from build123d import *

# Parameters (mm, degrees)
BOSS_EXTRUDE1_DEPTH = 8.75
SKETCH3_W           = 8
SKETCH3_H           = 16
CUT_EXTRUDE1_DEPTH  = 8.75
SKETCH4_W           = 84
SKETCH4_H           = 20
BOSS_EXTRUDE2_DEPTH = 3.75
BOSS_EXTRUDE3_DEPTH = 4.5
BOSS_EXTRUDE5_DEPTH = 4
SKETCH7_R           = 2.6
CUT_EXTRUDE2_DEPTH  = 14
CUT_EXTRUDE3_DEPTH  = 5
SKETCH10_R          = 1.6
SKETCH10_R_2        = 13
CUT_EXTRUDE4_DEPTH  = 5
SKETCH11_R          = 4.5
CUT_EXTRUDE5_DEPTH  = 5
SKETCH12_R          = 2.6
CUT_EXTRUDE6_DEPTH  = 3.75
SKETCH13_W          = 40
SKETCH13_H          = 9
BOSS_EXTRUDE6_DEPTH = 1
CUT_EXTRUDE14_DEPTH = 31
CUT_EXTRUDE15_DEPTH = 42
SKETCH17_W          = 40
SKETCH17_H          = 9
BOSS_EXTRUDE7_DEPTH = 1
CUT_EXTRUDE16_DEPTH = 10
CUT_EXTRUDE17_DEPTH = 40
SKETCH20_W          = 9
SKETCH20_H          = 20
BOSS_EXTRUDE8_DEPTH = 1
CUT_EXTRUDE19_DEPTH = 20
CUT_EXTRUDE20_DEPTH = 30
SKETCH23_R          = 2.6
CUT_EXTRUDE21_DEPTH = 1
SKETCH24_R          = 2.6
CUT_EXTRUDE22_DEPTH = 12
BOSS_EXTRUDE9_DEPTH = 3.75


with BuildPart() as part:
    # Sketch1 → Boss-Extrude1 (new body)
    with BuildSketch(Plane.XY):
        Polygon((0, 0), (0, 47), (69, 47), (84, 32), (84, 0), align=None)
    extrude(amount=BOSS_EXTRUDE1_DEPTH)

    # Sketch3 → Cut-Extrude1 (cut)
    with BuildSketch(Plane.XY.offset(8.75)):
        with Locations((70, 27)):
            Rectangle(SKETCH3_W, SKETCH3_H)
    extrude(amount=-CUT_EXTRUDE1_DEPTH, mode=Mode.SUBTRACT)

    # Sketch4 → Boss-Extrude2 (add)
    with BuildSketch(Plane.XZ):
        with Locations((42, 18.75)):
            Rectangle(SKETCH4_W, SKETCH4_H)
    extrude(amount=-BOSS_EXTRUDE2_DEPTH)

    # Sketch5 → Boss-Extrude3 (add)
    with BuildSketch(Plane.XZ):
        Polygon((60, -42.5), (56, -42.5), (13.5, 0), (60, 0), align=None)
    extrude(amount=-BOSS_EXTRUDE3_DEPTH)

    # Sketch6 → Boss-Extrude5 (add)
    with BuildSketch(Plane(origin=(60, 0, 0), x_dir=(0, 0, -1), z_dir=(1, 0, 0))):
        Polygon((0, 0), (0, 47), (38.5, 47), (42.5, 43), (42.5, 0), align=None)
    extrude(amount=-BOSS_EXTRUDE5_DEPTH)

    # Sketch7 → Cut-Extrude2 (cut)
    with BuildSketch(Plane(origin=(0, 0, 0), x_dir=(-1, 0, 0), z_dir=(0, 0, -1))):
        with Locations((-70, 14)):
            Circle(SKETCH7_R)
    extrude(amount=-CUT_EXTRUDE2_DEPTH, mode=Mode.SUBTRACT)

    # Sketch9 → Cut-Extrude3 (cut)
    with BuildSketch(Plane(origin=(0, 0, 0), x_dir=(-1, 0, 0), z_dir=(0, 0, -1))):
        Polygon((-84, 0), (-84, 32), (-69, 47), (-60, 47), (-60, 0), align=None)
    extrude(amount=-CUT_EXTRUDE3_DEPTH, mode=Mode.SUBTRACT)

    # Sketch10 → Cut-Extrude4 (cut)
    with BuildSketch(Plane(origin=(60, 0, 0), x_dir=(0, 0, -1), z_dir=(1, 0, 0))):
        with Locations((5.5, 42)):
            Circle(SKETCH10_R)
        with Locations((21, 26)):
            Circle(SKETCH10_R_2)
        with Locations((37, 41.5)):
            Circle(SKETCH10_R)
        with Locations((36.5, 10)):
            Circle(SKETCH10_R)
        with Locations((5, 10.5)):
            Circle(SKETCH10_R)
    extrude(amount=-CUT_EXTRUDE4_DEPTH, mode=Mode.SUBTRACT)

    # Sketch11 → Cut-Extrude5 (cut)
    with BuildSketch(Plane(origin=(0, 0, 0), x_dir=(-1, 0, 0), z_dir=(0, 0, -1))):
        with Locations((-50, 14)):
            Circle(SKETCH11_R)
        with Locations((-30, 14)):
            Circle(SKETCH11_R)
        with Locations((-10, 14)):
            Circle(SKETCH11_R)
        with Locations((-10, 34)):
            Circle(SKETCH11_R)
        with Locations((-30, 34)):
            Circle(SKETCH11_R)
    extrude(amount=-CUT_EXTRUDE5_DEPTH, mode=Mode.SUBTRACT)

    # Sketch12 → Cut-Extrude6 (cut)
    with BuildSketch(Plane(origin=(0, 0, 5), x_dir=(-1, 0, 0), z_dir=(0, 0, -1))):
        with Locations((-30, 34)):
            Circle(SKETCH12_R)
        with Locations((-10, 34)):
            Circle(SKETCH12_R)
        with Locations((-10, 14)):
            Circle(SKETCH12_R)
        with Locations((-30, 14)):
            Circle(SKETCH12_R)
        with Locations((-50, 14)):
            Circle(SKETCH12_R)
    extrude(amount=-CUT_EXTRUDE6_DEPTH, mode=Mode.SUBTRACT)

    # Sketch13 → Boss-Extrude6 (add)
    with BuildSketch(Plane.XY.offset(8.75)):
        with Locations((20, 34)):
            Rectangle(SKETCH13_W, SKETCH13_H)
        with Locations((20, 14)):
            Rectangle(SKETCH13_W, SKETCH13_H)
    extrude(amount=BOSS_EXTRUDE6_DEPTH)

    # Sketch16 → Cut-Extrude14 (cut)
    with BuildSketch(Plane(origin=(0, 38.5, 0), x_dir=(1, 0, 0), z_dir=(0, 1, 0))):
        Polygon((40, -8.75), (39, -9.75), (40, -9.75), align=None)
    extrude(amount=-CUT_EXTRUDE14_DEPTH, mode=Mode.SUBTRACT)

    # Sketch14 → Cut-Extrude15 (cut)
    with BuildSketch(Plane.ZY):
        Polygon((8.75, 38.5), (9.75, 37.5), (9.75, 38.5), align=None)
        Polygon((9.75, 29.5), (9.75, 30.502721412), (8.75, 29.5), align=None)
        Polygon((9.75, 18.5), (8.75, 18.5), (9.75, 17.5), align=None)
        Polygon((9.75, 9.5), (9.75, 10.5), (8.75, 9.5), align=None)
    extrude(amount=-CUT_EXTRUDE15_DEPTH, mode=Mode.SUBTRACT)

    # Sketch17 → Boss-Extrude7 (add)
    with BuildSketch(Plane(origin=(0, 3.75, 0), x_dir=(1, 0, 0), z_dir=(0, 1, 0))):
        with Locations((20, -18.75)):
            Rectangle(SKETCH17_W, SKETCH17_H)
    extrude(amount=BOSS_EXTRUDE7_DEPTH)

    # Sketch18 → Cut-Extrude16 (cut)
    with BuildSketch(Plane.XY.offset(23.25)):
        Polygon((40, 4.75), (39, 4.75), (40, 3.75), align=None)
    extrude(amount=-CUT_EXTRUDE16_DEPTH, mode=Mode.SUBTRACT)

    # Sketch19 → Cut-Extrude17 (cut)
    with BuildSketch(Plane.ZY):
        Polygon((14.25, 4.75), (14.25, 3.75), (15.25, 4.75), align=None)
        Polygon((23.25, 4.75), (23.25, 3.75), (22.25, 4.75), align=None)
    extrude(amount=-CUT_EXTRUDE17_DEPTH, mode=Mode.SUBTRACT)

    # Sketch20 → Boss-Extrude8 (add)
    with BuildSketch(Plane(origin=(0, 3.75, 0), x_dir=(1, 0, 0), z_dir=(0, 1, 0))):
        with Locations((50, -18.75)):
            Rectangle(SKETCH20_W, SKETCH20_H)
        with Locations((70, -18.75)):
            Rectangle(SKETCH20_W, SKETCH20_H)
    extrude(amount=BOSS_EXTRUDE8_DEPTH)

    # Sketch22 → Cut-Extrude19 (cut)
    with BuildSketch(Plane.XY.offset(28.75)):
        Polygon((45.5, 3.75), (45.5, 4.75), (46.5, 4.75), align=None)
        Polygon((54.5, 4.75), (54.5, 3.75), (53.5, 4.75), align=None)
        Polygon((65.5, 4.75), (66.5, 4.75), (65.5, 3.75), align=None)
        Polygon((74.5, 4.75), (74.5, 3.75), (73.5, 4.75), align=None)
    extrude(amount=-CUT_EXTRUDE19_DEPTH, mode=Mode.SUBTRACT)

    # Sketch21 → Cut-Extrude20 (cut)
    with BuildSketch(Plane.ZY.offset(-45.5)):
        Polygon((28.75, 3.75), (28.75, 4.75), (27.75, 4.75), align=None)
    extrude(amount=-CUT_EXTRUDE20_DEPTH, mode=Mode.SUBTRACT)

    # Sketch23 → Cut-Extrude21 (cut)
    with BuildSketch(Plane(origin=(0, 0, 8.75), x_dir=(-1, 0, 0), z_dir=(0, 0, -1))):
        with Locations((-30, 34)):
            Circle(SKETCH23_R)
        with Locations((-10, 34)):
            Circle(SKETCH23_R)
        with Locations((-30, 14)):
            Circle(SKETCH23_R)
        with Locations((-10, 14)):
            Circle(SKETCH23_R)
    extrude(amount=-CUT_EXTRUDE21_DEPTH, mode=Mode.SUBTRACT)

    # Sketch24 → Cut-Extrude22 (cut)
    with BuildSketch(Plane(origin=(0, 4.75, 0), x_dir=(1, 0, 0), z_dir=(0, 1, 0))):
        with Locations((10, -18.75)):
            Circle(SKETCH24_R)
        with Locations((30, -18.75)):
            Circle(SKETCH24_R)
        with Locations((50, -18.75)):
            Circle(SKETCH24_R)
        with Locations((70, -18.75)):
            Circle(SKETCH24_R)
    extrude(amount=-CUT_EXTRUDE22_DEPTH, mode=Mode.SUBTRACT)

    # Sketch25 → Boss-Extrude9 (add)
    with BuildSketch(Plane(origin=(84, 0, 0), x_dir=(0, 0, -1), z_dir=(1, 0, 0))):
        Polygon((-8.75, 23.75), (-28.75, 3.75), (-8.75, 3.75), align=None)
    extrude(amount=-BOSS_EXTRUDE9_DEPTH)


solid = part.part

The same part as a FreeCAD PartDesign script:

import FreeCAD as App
import Part
import Sketcher
Q = App.Units.Quantity

doc = App.newDocument("Part")
params = doc.addObject("Spreadsheet::Sheet", "Params")
for row, (alias, value) in enumerate([
    ("sketch1_width", "84 mm"),
    ("sketch1_width2", "69 mm"),
    ("sketch1_height", "47 mm"),
    ("sketch1_height2", "32 mm"),
    ("pad1_length", "8.75 mm"),
    ("sketch2_width", "8 mm"),
    ("sketch2_height", "16 mm"),
    ("pocket1_length", "8.75 mm"),
    ("sketch3_width", "84 mm"),
    ("sketch3_height", "20 mm"),
    ("pad2_length", "3.75 mm"),
    ("sketch4_width", "4 mm"),
    ("sketch4_width2", "46.5 mm"),
    ("pad3_length", "4.5 mm"),
    ("sketch5_width", "47 mm"),
    ("sketch5_width2", "43 mm"),
    ("sketch5_height", "42.5 mm"),
    ("pad4_length", "4 mm"),
    ("sketch6_diameter", "5.2 mm"),
    ("pocket2_length", "14 mm"),
    ("sketch7_width", "24 mm"),
    ("sketch7_width2", "9 mm"),
    ("sketch7_height", "32 mm"),
    ("sketch7_height2", "47 mm"),
    ("pocket3_length", "5 mm"),
    ("sketch8_diameter", "26 mm"),
    ("sketch8_diameter2", "3.2 mm"),
    ("pocket4_length", "5 mm"),
    ("sketch9_diameter", "9 mm"),
    ("pocket5_length", "5 mm"),
    ("sketch10_diameter", "5.2 mm"),
    ("pocket6_length", "3.75 mm"),
    ("sketch11_width", "40 mm"),
    ("sketch11_height", "9 mm"),
    ("pad5_length", "1 mm"),
    ("sketch12_width", "1 mm"),
    ("pocket7_length", "31 mm"),
    ("sketch13_width", "1 mm"),
    ("pocket8_length", "42 mm"),
    ("sketch14_width", "40 mm"),
    ("sketch14_height", "9 mm"),
    ("pad6_length", "1 mm"),
    ("sketch15_width", "1 mm"),
    ("pocket9_length", "10 mm"),
    ("sketch16_width", "1 mm"),
    ("pocket10_length", "40 mm"),
    ("sketch17_width", "9 mm"),
    ("sketch17_height", "20 mm"),
    ("pad7_length", "1 mm"),
    ("sketch18_width", "1 mm"),
    ("pocket11_length", "20 mm"),
    ("sketch19_width", "1 mm"),
    ("pocket12_length", "30 mm"),
    ("sketch20_diameter", "5.2 mm"),
    ("pocket13_length", "1 mm"),
    ("sketch21_diameter", "5.2 mm"),
    ("pocket14_length", "12 mm"),
    ("sketch22_width", "20 mm"),
    ("pad8_length", "3.75 mm"),
], start=1):
    params.set(f"A{row}", alias)
    params.set(f"B{row}", "=" + value)
    params.setAlias(f"B{row}", alias)

body = doc.addObject("PartDesign::Body", "Body")

sketch1 = body.newObject("Sketcher::SketchObject", "Sketch")
sketch1.AttachmentSupport = (doc.getObject("XY_Plane"), [""])
sketch1.MapMode = "FlatFace"
sketch1.addGeometry([
    Part.LineSegment(App.Vector(0, 47, 0), App.Vector(0, 0, 0)),
    Part.LineSegment(App.Vector(0, 0, 0), App.Vector(84, 0, 0)),
    Part.LineSegment(App.Vector(84, 0, 0), App.Vector(84, 32, 0)),
    Part.LineSegment(App.Vector(84, 32, 0), App.Vector(69, 47, 0)),
    Part.LineSegment(App.Vector(69, 47, 0), App.Vector(0, 47, 0)),
], False)
sketch1.addConstraint([
    Sketcher.Constraint("Coincident", 0, 2, 1, 1),
    Sketcher.Constraint("Coincident", 1, 2, 2, 1),
    Sketcher.Constraint("Coincident", 2, 2, 3, 1),
    Sketcher.Constraint("Coincident", 3, 2, 4, 1),
    Sketcher.Constraint("Coincident", 4, 2, 0, 1),
    Sketcher.Constraint("Vertical", 0),
    Sketcher.Constraint("Horizontal", 1),
    Sketcher.Constraint("Vertical", 2),
    Sketcher.Constraint("Horizontal", 4),
    Sketcher.Constraint("Coincident", 0, 2, -1, 1),
    Sketcher.Constraint("DistanceX", 1, 1, 1, 2, Q("84 mm")),
    Sketcher.Constraint("DistanceX", 4, 2, 4, 1, Q("69 mm")),
    Sketcher.Constraint("DistanceY", 0, 2, 0, 1, Q("47 mm")),
    Sketcher.Constraint("DistanceY", 2, 1, 2, 2, Q("32 mm")),
])
sketch1.setExpression("Constraints[10]", "Params.sketch1_width")
sketch1.setExpression("Constraints[11]", "Params.sketch1_width2")
sketch1.setExpression("Constraints[12]", "Params.sketch1_height")
sketch1.setExpression("Constraints[13]", "Params.sketch1_height2")
pad1 = body.newObject("PartDesign::Pad", "Pad")
pad1.Profile = sketch1
pad1.setExpression("Length", "Params.pad1_length")

sketch2 = body.newObject("Sketcher::SketchObject", "Sketch001")
sketch2.AttachmentSupport = (doc.getObject("XY_Plane"), [""])
sketch2.MapMode = "FlatFace"
sketch2.AttachmentOffset = App.Placement(App.Vector(0, 0, 8.75), App.Rotation())
sketch2.addGeometry([
    Part.LineSegment(App.Vector(66, 35, 0), App.Vector(66, 19, 0)),
    Part.LineSegment(App.Vector(66, 19, 0), App.Vector(74, 19, 0)),
    Part.LineSegment(App.Vector(74, 19, 0), App.Vector(74, 35, 0)),
    Part.LineSegment(App.Vector(74, 35, 0), App.Vector(66, 35, 0)),
], False)
sketch2.addConstraint([
    Sketcher.Constraint("Coincident", 0, 2, 1, 1),
    Sketcher.Constraint("Coincident", 1, 2, 2, 1),
    Sketcher.Constraint("Coincident", 2, 2, 3, 1),
    Sketcher.Constraint("Coincident", 3, 2, 0, 1),
    Sketcher.Constraint("Vertical", 0),
    Sketcher.Constraint("Horizontal", 1),
    Sketcher.Constraint("Vertical", 2),
    Sketcher.Constraint("Horizontal", 3),
    Sketcher.Constraint("DistanceX", 1, 1, 1, 2, Q("8 mm")),
    Sketcher.Constraint("DistanceY", 0, 2, 0, 1, Q("16 mm")),
    Sketcher.Constraint("DistanceX", -1, 1, 0, 2, Q("66 mm")),
    Sketcher.Constraint("DistanceY", -1, 1, 0, 2, Q("19 mm")),
])
sketch2.setExpression("Constraints[8]", "Params.sketch2_width")
sketch2.setExpression("Constraints[9]", "Params.sketch2_height")
pocket1 = body.newObject("PartDesign::Pocket", "Pocket")
pocket1.Profile = sketch2
pocket1.setExpression("Length", "Params.pocket1_length")

sketch3 = body.newObject("Sketcher::SketchObject", "Sketch002")
sketch3.AttachmentSupport = (doc.getObject("XZ_Plane"), [""])
sketch3.MapMode = "FlatFace"
sketch3.addGeometry([
    Part.LineSegment(App.Vector(0, 29, 0), App.Vector(0, 9, 0)),
    Part.LineSegment(App.Vector(0, 9, 0), App.Vector(84, 9, 0)),
    Part.LineSegment(App.Vector(84, 9, 0), App.Vector(84, 29, 0)),
    Part.LineSegment(App.Vector(84, 29, 0), App.Vector(0, 29, 0)),
], False)
sketch3.addConstraint([
    Sketcher.Constraint("Coincident", 0, 2, 1, 1),
    Sketcher.Constraint("Coincident", 1, 2, 2, 1),
    Sketcher.Constraint("Coincident", 2, 2, 3, 1),
    Sketcher.Constraint("Coincident", 3, 2, 0, 1),
    Sketcher.Constraint("Vertical", 0),
    Sketcher.Constraint("Horizontal", 1),
    Sketcher.Constraint("Vertical", 2),
    Sketcher.Constraint("Horizontal", 3),
    Sketcher.Constraint("PointOnObject", 0, 2, -2),
    Sketcher.Constraint("DistanceX", 1, 1, 1, 2, Q("84 mm")),
    Sketcher.Constraint("DistanceY", 0, 2, 0, 1, Q("20 mm")),
    Sketcher.Constraint("DistanceY", -1, 1, 0, 2, Q("8.75 mm")),
])
sketch3.setExpression("Constraints[9]", "Params.sketch3_width")
sketch3.setExpression("Constraints[10]", "Params.sketch3_height")
pad2 = body.newObject("PartDesign::Pad", "Pad001")
pad2.Profile = sketch3
pad2.setExpression("Length", "Params.pad2_length")
pad2.Reversed = True

sketch4 = body.newObject("Sketcher::SketchObject", "Sketch003")
sketch4.AttachmentSupport = (doc.getObject("XZ_Plane"), [""])
sketch4.MapMode = "FlatFace"
sketch4.addGeometry([
    Part.LineSegment(App.Vector(56, -42.5, 0), App.Vector(60, -42.5, 0)),
    Part.LineSegment(App.Vector(60, -42.5, 0), App.Vector(60, 0, 0)),
    Part.LineSegment(App.Vector(60, 0, 0), App.Vector(13.5, 0, 0)),
    Part.LineSegment(App.Vector(13.5, 0, 0), App.Vector(56, -42.5, 0)),
], False)
sketch4.addConstraint([
    Sketcher.Constraint("Coincident", 0, 2, 1, 1),
    Sketcher.Constraint("Coincident", 1, 2, 2, 1),
    Sketcher.Constraint("Coincident", 2, 2, 3, 1),
    Sketcher.Constraint("Coincident", 3, 2, 0, 1),
    Sketcher.Constraint("Horizontal", 0),
    Sketcher.Constraint("Vertical", 1),
    Sketcher.Constraint("Horizontal", 2),
    Sketcher.Constraint("PointOnObject", 1, 2, -1),
    Sketcher.Constraint("DistanceX", 0, 1, 0, 2, Q("4 mm")),
    Sketcher.Constraint("Angle", 3, Q("-45 deg")),
    Sketcher.Constraint("DistanceX", 2, 2, 2, 1, Q("46.5 mm")),
    Sketcher.Constraint("DistanceX", -1, 1, 0, 2, Q("60 mm")),
])
sketch4.setExpression("Constraints[8]", "Params.sketch4_width")
sketch4.setExpression("Constraints[10]", "Params.sketch4_width2")
pad3 = body.newObject("PartDesign::Pad", "Pad002")
pad3.Profile = sketch4
pad3.setExpression("Length", "Params.pad3_length")
pad3.Reversed = True

sketch5 = body.newObject("Sketcher::SketchObject", "Sketch004")
sketch5.AttachmentSupport = (doc.getObject("YZ_Plane"), [""])
sketch5.MapMode = "FlatFace"
sketch5.AttachmentOffset = App.Placement(App.Vector(0, 0, 60), App.Rotation())
sketch5.addGeometry([
    Part.LineSegment(App.Vector(47, 0, 0), App.Vector(0, 0, 0)),
    Part.LineSegment(App.Vector(0, 0, 0), App.Vector(0, -42, 0)),
    Part.LineSegment(App.Vector(0, -42, 0), App.Vector(43, -42, 0)),
    Part.LineSegment(App.Vector(43, -42, 0), App.Vector(47, -38, 0)),
    Part.LineSegment(App.Vector(47, -38, 0), App.Vector(47, 0, 0)),
], False)
sketch5.addConstraint([
    Sketcher.Constraint("Coincident", 0, 2, 1, 1),
    Sketcher.Constraint("Coincident", 1, 2, 2, 1),
    Sketcher.Constraint("Coincident", 2, 2, 3, 1),
    Sketcher.Constraint("Coincident", 3, 2, 4, 1),
    Sketcher.Constraint("Coincident", 4, 2, 0, 1),
    Sketcher.Constraint("Horizontal", 0),
    Sketcher.Constraint("Vertical", 1),
    Sketcher.Constraint("Horizontal", 2),
    Sketcher.Constraint("Vertical", 4),
    Sketcher.Constraint("Coincident", 0, 2, -1, 1),
    Sketcher.Constraint("DistanceX", 0, 2, 0, 1, Q("47 mm")),
    Sketcher.Constraint("DistanceX", 2, 1, 2, 2, Q("43 mm")),
    Sketcher.Constraint("Angle", 3, Q("45 deg")),
    Sketcher.Constraint("DistanceY", 1, 2, 1, 1, Q("42.5 mm")),
])
sketch5.setExpression("Constraints[10]", "Params.sketch5_width")
sketch5.setExpression("Constraints[11]", "Params.sketch5_width2")
sketch5.setExpression("Constraints[13]", "Params.sketch5_height")
pad4 = body.newObject("PartDesign::Pad", "Pad003")
pad4.Profile = sketch5
pad4.setExpression("Length", "Params.pad4_length")
pad4.Reversed = True

sketch6 = body.newObject("Sketcher::SketchObject", "Sketch005")
sketch6.AttachmentSupport = (doc.getObject("XY_Plane"), [""])
sketch6.MapMode = "FlatFace"
sketch6.addGeometry(Part.Circle(App.Vector(70, 14, 0), App.Vector(0, 0, 1), 2.6), False)
sketch6.addConstraint([
    Sketcher.Constraint("Diameter", 0, Q("5.2 mm")),
    Sketcher.Constraint("DistanceX", -1, 1, 0, 3, Q("70 mm")),
    Sketcher.Constraint("DistanceY", -1, 1, 0, 3, Q("14 mm")),
])
sketch6.setExpression("Constraints[0]", "Params.sketch6_diameter")
pocket2 = body.newObject("PartDesign::Pocket", "Pocket001")
pocket2.Profile = sketch6
pocket2.setExpression("Length", "Params.pocket2_length")
pocket2.Reversed = True

sketch7 = body.newObject("Sketcher::SketchObject", "Sketch006")
sketch7.AttachmentSupport = (doc.getObject("XY_Plane"), [""])
sketch7.MapMode = "FlatFace"
sketch7.addGeometry([
    Part.LineSegment(App.Vector(84, 32, 0), App.Vector(84, 0, 0)),
    Part.LineSegment(App.Vector(84, 0, 0), App.Vector(60, 0, 0)),
    Part.LineSegment(App.Vector(60, 0, 0), App.Vector(60, 47, 0)),
    Part.LineSegment(App.Vector(60, 47, 0), App.Vector(69, 47, 0)),
    Part.LineSegment(App.Vector(69, 47, 0), App.Vector(84, 32, 0)),
], False)
sketch7.addConstraint([
    Sketcher.Constraint("Coincident", 0, 2, 1, 1),
    Sketcher.Constraint("Coincident", 1, 2, 2, 1),
    Sketcher.Constraint("Coincident", 2, 2, 3, 1),
    Sketcher.Constraint("Coincident", 3, 2, 4, 1),
    Sketcher.Constraint("Coincident", 4, 2, 0, 1),
    Sketcher.Constraint("Vertical", 0),
    Sketcher.Constraint("Horizontal", 1),
    Sketcher.Constraint("Vertical", 2),
    Sketcher.Constraint("Horizontal", 3),
    Sketcher.Constraint("PointOnObject", 0, 2, -1),
    Sketcher.Constraint("DistanceX", 1, 2, 1, 1, Q("24 mm")),
    Sketcher.Constraint("DistanceX", 3, 1, 3, 2, Q("9 mm")),
    Sketcher.Constraint("DistanceY", 0, 2, 0, 1, Q("32 mm")),
    Sketcher.Constraint("DistanceY", 2, 1, 2, 2, Q("47 mm")),
    Sketcher.Constraint("DistanceX", -1, 1, 0, 2, Q("84 mm")),
])
sketch7.setExpression("Constraints[10]", "Params.sketch7_width")
sketch7.setExpression("Constraints[11]", "Params.sketch7_width2")
sketch7.setExpression("Constraints[12]", "Params.sketch7_height")
sketch7.setExpression("Constraints[13]", "Params.sketch7_height2")
pocket3 = body.newObject("PartDesign::Pocket", "Pocket002")
pocket3.Profile = sketch7
pocket3.setExpression("Length", "Params.pocket3_length")
pocket3.Reversed = True

sketch8 = body.newObject("Sketcher::SketchObject", "Sketch007")
sketch8.AttachmentSupport = (doc.getObject("YZ_Plane"), [""])
sketch8.MapMode = "FlatFace"
sketch8.AttachmentOffset = App.Placement(App.Vector(0, 0, 60), App.Rotation())
sketch8.addGeometry([
    Part.Circle(App.Vector(42, -5.5, 0), App.Vector(0, 0, 1), 1.6),
    Part.Circle(App.Vector(26, -21, 0), App.Vector(0, 0, 1), 13),
    Part.Circle(App.Vector(41.5, -37, 0), App.Vector(0, 0, 1), 1.6),
    Part.Circle(App.Vector(10, -36.5, 0), App.Vector(0, 0, 1), 1.6),
    Part.Circle(App.Vector(10.5, -5, 0), App.Vector(0, 0, 1), 1.6),
], False)
sketch8.addConstraint([
    Sketcher.Constraint("Equal", 0, 2),
    Sketcher.Constraint("Equal", 2, 3),
    Sketcher.Constraint("Equal", 3, 4),
    Sketcher.Constraint("Diameter", 1, Q("26 mm")),
    Sketcher.Constraint("Diameter", 0, Q("3.2 mm")),
    Sketcher.Constraint("DistanceX", -1, 1, 0, 3, Q("42 mm")),
    Sketcher.Constraint("DistanceX", -1, 1, 1, 3, Q("26 mm")),
    Sketcher.Constraint("DistanceY", 1, 3, -1, 1, Q("21 mm")),
    Sketcher.Constraint("DistanceY", 2, 3, -1, 1, Q("37 mm")),
    Sketcher.Constraint("DistanceX", -1, 1, 3, 3, Q("10 mm")),
    Sketcher.Constraint("DistanceY", 4, 3, -1, 1, Q("5 mm")),
    Sketcher.Constraint("DistanceY", 3, 3, 0, 3, Q("31 mm")),
    Sketcher.Constraint("DistanceX", 4, 3, 2, 3, Q("31 mm")),
    Sketcher.Constraint("DistanceY", 0, 3, -1, 1, Q("5.5 mm")),
    Sketcher.Constraint("DistanceX", -1, 1, 2, 3, Q("41.5 mm")),
])
sketch8.setExpression("Constraints[3]", "Params.sketch8_diameter")
sketch8.setExpression("Constraints[4]", "Params.sketch8_diameter2")
pocket4 = body.newObject("PartDesign::Pocket", "Pocket003")
pocket4.Profile = sketch8
pocket4.setExpression("Length", "Params.pocket4_length")

sketch9 = body.newObject("Sketcher::SketchObject", "Sketch008")
sketch9.AttachmentSupport = (doc.getObject("XY_Plane"), [""])
sketch9.MapMode = "FlatFace"
sketch9.addGeometry([
    Part.Circle(App.Vector(50, 14, 0), App.Vector(0, 0, 1), 4.5),
    Part.Circle(App.Vector(30, 14, 0), App.Vector(0, 0, 1), 4.5),
    Part.Circle(App.Vector(10, 14, 0), App.Vector(0, 0, 1), 4.5),
    Part.Circle(App.Vector(10, 34, 0), App.Vector(0, 0, 1), 4.5),
    Part.Circle(App.Vector(30, 34, 0), App.Vector(0, 0, 1), 4.5),
], False)
sketch9.addConstraint([
    Sketcher.Constraint("Equal", 0, 1),
    Sketcher.Constraint("Equal", 1, 2),
    Sketcher.Constraint("Equal", 2, 3),
    Sketcher.Constraint("Equal", 3, 4),
    Sketcher.Constraint("Horizontal", 0, 3, 1, 3),
    Sketcher.Constraint("Horizontal", 1, 3, 2, 3),
    Sketcher.Constraint("Horizontal", 3, 3, 4, 3),
    Sketcher.Constraint("Vertical", 2, 3, 3, 3),
    Sketcher.Constraint("Vertical", 1, 3, 4, 3),
    Sketcher.Constraint("Diameter", 0, Q("9 mm")),
    Sketcher.Constraint("DistanceX", -1, 1, 0, 3, Q("50 mm")),
    Sketcher.Constraint("DistanceY", -1, 1, 0, 3, Q("14 mm")),
    Sketcher.Constraint("DistanceX", -1, 1, 1, 3, Q("30 mm")),
    Sketcher.Constraint("DistanceX", -1, 1, 2, 3, Q("10 mm")),
    Sketcher.Constraint("DistanceY", -1, 1, 3, 3, Q("34 mm")),
])
sketch9.setExpression("Constraints[9]", "Params.sketch9_diameter")
pocket5 = body.newObject("PartDesign::Pocket", "Pocket004")
pocket5.Profile = sketch9
pocket5.setExpression("Length", "Params.pocket5_length")
pocket5.Reversed = True

sketch10 = body.newObject("Sketcher::SketchObject", "Sketch009")
sketch10.AttachmentSupport = (doc.getObject("XY_Plane"), [""])
sketch10.MapMode = "FlatFace"
sketch10.AttachmentOffset = App.Placement(App.Vector(0, 0, 5), App.Rotation())
sketch10.addGeometry([
    Part.Circle(App.Vector(30, 34, 0), App.Vector(0, 0, 1), 2.6),
    Part.Circle(App.Vector(10, 34, 0), App.Vector(0, 0, 1), 2.6),
    Part.Circle(App.Vector(10, 14, 0), App.Vector(0, 0, 1), 2.6),
    Part.Circle(App.Vector(30, 14, 0), App.Vector(0, 0, 1), 2.6),
    Part.Circle(App.Vector(50, 14, 0), App.Vector(0, 0, 1), 2.6),
], False)
sketch10.addConstraint([
    Sketcher.Constraint("Equal", 0, 1),
    Sketcher.Constraint("Equal", 1, 2),
    Sketcher.Constraint("Equal", 2, 3),
    Sketcher.Constraint("Equal", 3, 4),
    Sketcher.Constraint("Horizontal", 0, 3, 1, 3),
    Sketcher.Constraint("Horizontal", 2, 3, 3, 3),
    Sketcher.Constraint("Horizontal", 3, 3, 4, 3),
    Sketcher.Constraint("Vertical", 1, 3, 2, 3),
    Sketcher.Constraint("Vertical", 0, 3, 3, 3),
    Sketcher.Constraint("Diameter", 0, Q("5.2 mm")),
    Sketcher.Constraint("DistanceX", -1, 1, 0, 3, Q("30 mm")),
    Sketcher.Constraint("DistanceY", -1, 1, 0, 3, Q("34 mm")),
    Sketcher.Constraint("DistanceX", -1, 1, 1, 3, Q("10 mm")),
    Sketcher.Constraint("DistanceY", -1, 1, 2, 3, Q("14 mm")),
    Sketcher.Constraint("DistanceX", -1, 1, 4, 3, Q("50 mm")),
])
sketch10.setExpression("Constraints[9]", "Params.sketch10_diameter")
pocket6 = body.newObject("PartDesign::Pocket", "Pocket005")
pocket6.Profile = sketch10
pocket6.setExpression("Length", "Params.pocket6_length")
pocket6.Reversed = True

sketch11 = body.newObject("Sketcher::SketchObject", "Sketch010")
sketch11.AttachmentSupport = (doc.getObject("XY_Plane"), [""])
sketch11.MapMode = "FlatFace"
sketch11.AttachmentOffset = App.Placement(App.Vector(0, 0, 8.75), App.Rotation())
sketch11.addGeometry([
    Part.LineSegment(App.Vector(0, 38, 0), App.Vector(0, 30, 0)),
    Part.LineSegment(App.Vector(0, 30, 0), App.Vector(40, 30, 0)),
    Part.LineSegment(App.Vector(40, 30, 0), App.Vector(40, 38, 0)),
    Part.LineSegment(App.Vector(40, 38, 0), App.Vector(0, 38, 0)),
    Part.LineSegment(App.Vector(0, 18, 0), App.Vector(0, 10, 0)),
    Part.LineSegment(App.Vector(0, 10, 0), App.Vector(40, 10, 0)),
    Part.LineSegment(App.Vector(40, 10, 0), App.Vector(40, 18, 0)),
    Part.LineSegment(App.Vector(40, 18, 0), App.Vector(0, 18, 0)),
], False)
sketch11.addConstraint([
    Sketcher.Constraint("Coincident", 0, 2, 1, 1),
    Sketcher.Constraint("Coincident", 1, 2, 2, 1),
    Sketcher.Constraint("Coincident", 2, 2, 3, 1),
    Sketcher.Constraint("Coincident", 3, 2, 0, 1),
    Sketcher.Constraint("Coincident", 4, 2, 5, 1),
    Sketcher.Constraint("Coincident", 5, 2, 6, 1),
    Sketcher.Constraint("Coincident", 6, 2, 7, 1),
    Sketcher.Constraint("Coincident", 7, 2, 4, 1),
    Sketcher.Constraint("Vertical", 0),
    Sketcher.Constraint("Horizontal", 1),
    Sketcher.Constraint("Vertical", 2),
    Sketcher.Constraint("Horizontal", 3),
    Sketcher.Constraint("Vertical", 4),
    Sketcher.Constraint("Horizontal", 5),
    Sketcher.Constraint("Vertical", 6),
    Sketcher.Constraint("Horizontal", 7),
    Sketcher.Constraint("PointOnObject", 0, 2, -2),
    Sketcher.Constraint("PointOnObject", 4, 2, -2),
    Sketcher.Constraint("Vertical", 2, 2, 5, 2),
    Sketcher.Constraint("Equal", 2, 4),
    Sketcher.Constraint("DistanceX", 1, 1, 1, 2, Q("40 mm")),
    Sketcher.Constraint("DistanceY", 0, 2, 0, 1, Q("9 mm")),
    Sketcher.Constraint("DistanceY", 4, 2, 0, 2, Q("20 mm")),
    Sketcher.Constraint("DistanceY", -1, 1, 0, 2, Q("29.5 mm")),
])
sketch11.setExpression("Constraints[20]", "Params.sketch11_width")
sketch11.setExpression("Constraints[21]", "Params.sketch11_height")
pad5 = body.newObject("PartDesign::Pad", "Pad004")
pad5.Profile = sketch11
pad5.setExpression("Length", "Params.pad5_length")

sketch12 = body.newObject("Sketcher::SketchObject", "Sketch011")
sketch12.AttachmentSupport = (doc.getObject("XZ_Plane"), [""])
sketch12.MapMode = "FlatFace"
sketch12.AttachmentOffset = App.Placement(App.Vector(0, 0, -38.5), App.Rotation())
sketch12.addGeometry([
    Part.LineSegment(App.Vector(40, 8.8, 0), App.Vector(39, 9.8, 0)),
    Part.LineSegment(App.Vector(39, 9.8, 0), App.Vector(40, 9.8, 0)),
    Part.LineSegment(App.Vector(40, 9.8, 0), App.Vector(40, 8.8, 0)),
], False)
sketch12.addConstraint([
    Sketcher.Constraint("Coincident", 0, 2, 1, 1),
    Sketcher.Constraint("Coincident", 1, 2, 2, 1),
    Sketcher.Constraint("Coincident", 2, 2, 0, 1),
    Sketcher.Constraint("Horizontal", 1),
    Sketcher.Constraint("Vertical", 2),
    Sketcher.Constraint("Equal", 1, 2),
    Sketcher.Constraint("DistanceX", 1, 1, 1, 2, Q("1 mm")),
    Sketcher.Constraint("DistanceX", -1, 1, 0, 2, Q("39 mm")),
    Sketcher.Constraint("DistanceY", -1, 1, 0, 2, Q("9.75 mm")),
])
sketch12.setExpression("Constraints[6]", "Params.sketch12_width")
pocket7 = body.newObject("PartDesign::Pocket", "Pocket006")
pocket7.Profile = sketch12
pocket7.setExpression("Length", "Params.pocket7_length")
pocket7.Reversed = True

sketch13 = body.newObject("Sketcher::SketchObject", "Sketch012")
sketch13.AttachmentSupport = (doc.getObject("YZ_Plane"), [""])
sketch13.MapMode = "FlatFace"
sketch13.addGeometry([
    Part.LineSegment(App.Vector(38.5, 8.8, 0), App.Vector(37.5, 9.8, 0)),
    Part.LineSegment(App.Vector(37.5, 9.8, 0), App.Vector(38.5, 9.8, 0)),
    Part.LineSegment(App.Vector(38.5, 9.8, 0), App.Vector(38.5, 8.8, 0)),
    Part.LineSegment(App.Vector(29.5, 9.8, 0), App.Vector(30.5, 9.8, 0)),
    Part.LineSegment(App.Vector(30.5, 9.8, 0), App.Vector(29.5, 8.8, 0)),
    Part.LineSegment(App.Vector(29.5, 8.8, 0), App.Vector(29.5, 9.8, 0)),
    Part.LineSegment(App.Vector(18.5, 9.8, 0), App.Vector(18.5, 8.8, 0)),
    Part.LineSegment(App.Vector(18.5, 8.8, 0), App.Vector(17.5, 9.8, 0)),
    Part.LineSegment(App.Vector(17.5, 9.8, 0), App.Vector(18.5, 9.8, 0)),
    Part.LineSegment(App.Vector(9.5, 9.8, 0), App.Vector(10.5, 9.8, 0)),
    Part.LineSegment(App.Vector(10.5, 9.8, 0), App.Vector(9.5, 8.8, 0)),
    Part.LineSegment(App.Vector(9.5, 8.8, 0), App.Vector(9.5, 9.8, 0)),
], False)
sketch13.addConstraint([
    Sketcher.Constraint("Coincident", 0, 2, 1, 1),
    Sketcher.Constraint("Coincident", 1, 2, 2, 1),
    Sketcher.Constraint("Coincident", 2, 2, 0, 1),
    Sketcher.Constraint("Coincident", 3, 2, 4, 1),
    Sketcher.Constraint("Coincident", 4, 2, 5, 1),
    Sketcher.Constraint("Coincident", 5, 2, 3, 1),
    Sketcher.Constraint("Coincident", 6, 2, 7, 1),
    Sketcher.Constraint("Coincident", 7, 2, 8, 1),
    Sketcher.Constraint("Coincident", 8, 2, 6, 1),
    Sketcher.Constraint("Coincident", 9, 2, 10, 1),
    Sketcher.Constraint("Coincident", 10, 2, 11, 1),
    Sketcher.Constraint("Coincident", 11, 2, 9, 1),
    Sketcher.Constraint("Horizontal", 1),
    Sketcher.Constraint("Vertical", 2),
    Sketcher.Constraint("Horizontal", 3),
    Sketcher.Constraint("Vertical", 5),
    Sketcher.Constraint("Vertical", 6),
    Sketcher.Constraint("Horizontal", 8),
    Sketcher.Constraint("Horizontal", 9),
    Sketcher.Constraint("Vertical", 11),
    Sketcher.Constraint("Parallel", 0, 7),
    Sketcher.Constraint("Perpendicular", 7, 10),
    Sketcher.Constraint("Horizontal", 1, 2, 3, 2),
    Sketcher.Constraint("Horizontal", 2, 2, 4, 2),
    Sketcher.Constraint("Horizontal", 4, 2, 6, 2),
    Sketcher.Constraint("Horizontal", 5, 2, 7, 2),
    Sketcher.Constraint("Horizontal", 8, 2, 9, 2),
    Sketcher.Constraint("Horizontal", 6, 2, 10, 2),
    Sketcher.Constraint("Equal", 8, 9),
    Sketcher.Constraint("DistanceX", 1, 1, 1, 2, Q("1 mm")),
    Sketcher.Constraint("DistanceX", 4, 2, 0, 2, Q("8 mm")),
    Sketcher.Constraint("DistanceX", 6, 2, 4, 2, Q("11 mm")),
    Sketcher.Constraint("DistanceX", 9, 2, 7, 2, Q("7 mm")),
    Sketcher.Constraint("DistanceX", -1, 1, 0, 2, Q("37.5 mm")),
    Sketcher.Constraint("DistanceY", -1, 1, 0, 2, Q("9.75 mm")),
    Sketcher.Constraint("DistanceX", 3, 1, 3, 2, Q("1.002721 mm")),
])
sketch13.setExpression("Constraints[29]", "Params.sketch13_width")
pocket8 = body.newObject("PartDesign::Pocket", "Pocket007")
pocket8.Profile = sketch13
pocket8.setExpression("Length", "Params.pocket8_length")
pocket8.Reversed = True

sketch14 = body.newObject("Sketcher::SketchObject", "Sketch013")
sketch14.AttachmentSupport = (doc.getObject("XZ_Plane"), [""])
sketch14.MapMode = "FlatFace"
sketch14.AttachmentOffset = App.Placement(App.Vector(0, 0, -3.75), App.Rotation())
sketch14.addGeometry([
    Part.LineSegment(App.Vector(0, 14, 0), App.Vector(0, 23, 0)),
    Part.LineSegment(App.Vector(0, 23, 0), App.Vector(40, 23, 0)),
    Part.LineSegment(App.Vector(40, 23, 0), App.Vector(40, 14, 0)),
    Part.LineSegment(App.Vector(40, 14, 0), App.Vector(0, 14, 0)),
], False)
sketch14.addConstraint([
    Sketcher.Constraint("Coincident", 0, 2, 1, 1),
    Sketcher.Constraint("Coincident", 1, 2, 2, 1),
    Sketcher.Constraint("Coincident", 2, 2, 3, 1),
    Sketcher.Constraint("Coincident", 3, 2, 0, 1),
    Sketcher.Constraint("Vertical", 0),
    Sketcher.Constraint("Horizontal", 1),
    Sketcher.Constraint("Vertical", 2),
    Sketcher.Constraint("Horizontal", 3),
    Sketcher.Constraint("PointOnObject", 0, 2, -2),
    Sketcher.Constraint("DistanceX", 1, 1, 1, 2, Q("40 mm")),
    Sketcher.Constraint("DistanceY", 0, 1, 0, 2, Q("9 mm")),
    Sketcher.Constraint("DistanceY", -1, 1, 0, 2, Q("23.25 mm")),
])
sketch14.setExpression("Constraints[9]", "Params.sketch14_width")
sketch14.setExpression("Constraints[10]", "Params.sketch14_height")
pad6 = body.newObject("PartDesign::Pad", "Pad005")
pad6.Profile = sketch14
pad6.setExpression("Length", "Params.pad6_length")
pad6.Reversed = True

sketch15 = body.newObject("Sketcher::SketchObject", "Sketch014")
sketch15.AttachmentSupport = (doc.getObject("XY_Plane"), [""])
sketch15.MapMode = "FlatFace"
sketch15.AttachmentOffset = App.Placement(App.Vector(0, 0, 23.25), App.Rotation())
sketch15.addGeometry([
    Part.LineSegment(App.Vector(40, 4.8, 0), App.Vector(39, 4.8, 0)),
    Part.LineSegment(App.Vector(39, 4.8, 0), App.Vector(40, 3.8, 0)),
    Part.LineSegment(App.Vector(40, 3.8, 0), App.Vector(40, 4.8, 0)),
], False)
sketch15.addConstraint([
    Sketcher.Constraint("Coincident", 0, 2, 1, 1),
    Sketcher.Constraint("Coincident", 1, 2, 2, 1),
    Sketcher.Constraint("Coincident", 2, 2, 0, 1),
    Sketcher.Constraint("Horizontal", 0),
    Sketcher.Constraint("Vertical", 2),
    Sketcher.Constraint("Equal", 0, 2),
    Sketcher.Constraint("DistanceX", 0, 2, 0, 1, Q("1 mm")),
    Sketcher.Constraint("DistanceX", -1, 1, 0, 2, Q("39 mm")),
    Sketcher.Constraint("DistanceY", -1, 1, 0, 2, Q("4.75 mm")),
])
sketch15.setExpression("Constraints[6]", "Params.sketch15_width")
pocket9 = body.newObject("PartDesign::Pocket", "Pocket008")
pocket9.Profile = sketch15
pocket9.setExpression("Length", "Params.pocket9_length")

sketch16 = body.newObject("Sketcher::SketchObject", "Sketch015")
sketch16.AttachmentSupport = (doc.getObject("YZ_Plane"), [""])
sketch16.MapMode = "FlatFace"
sketch16.addGeometry([
    Part.LineSegment(App.Vector(4.8, 14.2, 0), App.Vector(3.8, 14.2, 0)),
    Part.LineSegment(App.Vector(3.8, 14.2, 0), App.Vector(4.8, 15.2, 0)),
    Part.LineSegment(App.Vector(4.8, 15.2, 0), App.Vector(4.8, 14.2, 0)),
    Part.LineSegment(App.Vector(3.8, 23.2, 0), App.Vector(4.8, 23.2, 0)),
    Part.LineSegment(App.Vector(4.8, 23.2, 0), App.Vector(4.8, 22.2, 0)),
    Part.LineSegment(App.Vector(4.8, 22.2, 0), App.Vector(3.8, 23.2, 0)),
], False)
sketch16.addConstraint([
    Sketcher.Constraint("Coincident", 0, 2, 1, 1),
    Sketcher.Constraint("Coincident", 1, 2, 2, 1),
    Sketcher.Constraint("Coincident", 2, 2, 0, 1),
    Sketcher.Constraint("Coincident", 3, 2, 4, 1),
    Sketcher.Constraint("Coincident", 4, 2, 5, 1),
    Sketcher.Constraint("Coincident", 5, 2, 3, 1),
    Sketcher.Constraint("Horizontal", 0),
    Sketcher.Constraint("Vertical", 2),
    Sketcher.Constraint("Horizontal", 3),
    Sketcher.Constraint("Vertical", 4),
    Sketcher.Constraint("Perpendicular", 1, 5),
    Sketcher.Constraint("Vertical", 2, 2, 3, 2),
    Sketcher.Constraint("Vertical", 0, 2, 5, 2),
    Sketcher.Constraint("Equal", 3, 2),
    Sketcher.Constraint("DistanceX", 0, 2, 0, 1, Q("1 mm")),
    Sketcher.Constraint("DistanceY", 1, 2, 3, 2, Q("8 mm")),
    Sketcher.Constraint("DistanceX", -1, 1, 0, 2, Q("3.75 mm")),
    Sketcher.Constraint("DistanceY", -1, 1, 0, 2, Q("14.25 mm")),
])
sketch16.setExpression("Constraints[14]", "Params.sketch16_width")
pocket10 = body.newObject("PartDesign::Pocket", "Pocket009")
pocket10.Profile = sketch16
pocket10.setExpression("Length", "Params.pocket10_length")
pocket10.Reversed = True

sketch17 = body.newObject("Sketcher::SketchObject", "Sketch016")
sketch17.AttachmentSupport = (doc.getObject("XZ_Plane"), [""])
sketch17.MapMode = "FlatFace"
sketch17.AttachmentOffset = App.Placement(App.Vector(0, 0, -3.75), App.Rotation())
sketch17.addGeometry([
    Part.LineSegment(App.Vector(46, 9, 0), App.Vector(46, 29, 0)),
    Part.LineSegment(App.Vector(46, 29, 0), App.Vector(54, 29, 0)),
    Part.LineSegment(App.Vector(54, 29, 0), App.Vector(54, 9, 0)),
    Part.LineSegment(App.Vector(54, 9, 0), App.Vector(46, 9, 0)),
    Part.LineSegment(App.Vector(66, 9, 0), App.Vector(66, 29, 0)),
    Part.LineSegment(App.Vector(66, 29, 0), App.Vector(74, 29, 0)),
    Part.LineSegment(App.Vector(74, 29, 0), App.Vector(74, 9, 0)),
    Part.LineSegment(App.Vector(74, 9, 0), App.Vector(66, 9, 0)),
], False)
sketch17.addConstraint([
    Sketcher.Constraint("Coincident", 0, 2, 1, 1),
    Sketcher.Constraint("Coincident", 1, 2, 2, 1),
    Sketcher.Constraint("Coincident", 2, 2, 3, 1),
    Sketcher.Constraint("Coincident", 3, 2, 0, 1),
    Sketcher.Constraint("Coincident", 4, 2, 5, 1),
    Sketcher.Constraint("Coincident", 5, 2, 6, 1),
    Sketcher.Constraint("Coincident", 6, 2, 7, 1),
    Sketcher.Constraint("Coincident", 7, 2, 4, 1),
    Sketcher.Constraint("Vertical", 0),
    Sketcher.Constraint("Horizontal", 1),
    Sketcher.Constraint("Vertical", 2),
    Sketcher.Constraint("Horizontal", 3),
    Sketcher.Constraint("Vertical", 4),
    Sketcher.Constraint("Horizontal", 5),
    Sketcher.Constraint("Vertical", 6),
    Sketcher.Constraint("Horizontal", 7),
    Sketcher.Constraint("Horizontal", 1, 2, 4, 2),
    Sketcher.Constraint("Horizontal", 3, 2, 6, 2),
    Sketcher.Constraint("Equal", 3, 5),
    Sketcher.Constraint("DistanceX", 1, 1, 1, 2, Q("9 mm")),
    Sketcher.Constraint("DistanceY", 0, 1, 0, 2, Q("20 mm")),
    Sketcher.Constraint("DistanceX", 1, 2, 4, 2, Q("11 mm")),
    Sketcher.Constraint("DistanceX", -1, 1, 0, 2, Q("45.5 mm")),
    Sketcher.Constraint("DistanceY", -1, 1, 0, 2, Q("28.75 mm")),
])
sketch17.setExpression("Constraints[19]", "Params.sketch17_width")
sketch17.setExpression("Constraints[20]", "Params.sketch17_height")
pad7 = body.newObject("PartDesign::Pad", "Pad006")
pad7.Profile = sketch17
pad7.setExpression("Length", "Params.pad7_length")
pad7.Reversed = True

sketch18 = body.newObject("Sketcher::SketchObject", "Sketch017")
sketch18.AttachmentSupport = (doc.getObject("XY_Plane"), [""])
sketch18.MapMode = "FlatFace"
sketch18.AttachmentOffset = App.Placement(App.Vector(0, 0, 28.75), App.Rotation())
sketch18.addGeometry([
    Part.LineSegment(App.Vector(45.5, 4.8, 0), App.Vector(45.5, 3.8, 0)),
    Part.LineSegment(App.Vector(45.5, 3.8, 0), App.Vector(46.5, 4.8, 0)),
    Part.LineSegment(App.Vector(46.5, 4.8, 0), App.Vector(45.5, 4.8, 0)),
    Part.LineSegment(App.Vector(54.5, 3.8, 0), App.Vector(54.5, 4.8, 0)),
    Part.LineSegment(App.Vector(54.5, 4.8, 0), App.Vector(53.5, 4.8, 0)),
    Part.LineSegment(App.Vector(53.5, 4.8, 0), App.Vector(54.5, 3.8, 0)),
    Part.LineSegment(App.Vector(66.5, 4.8, 0), App.Vector(65.5, 4.8, 0)),
    Part.LineSegment(App.Vector(65.5, 4.8, 0), App.Vector(65.5, 3.8, 0)),
    Part.LineSegment(App.Vector(65.5, 3.8, 0), App.Vector(66.5, 4.8, 0)),
    Part.LineSegment(App.Vector(74.5, 3.8, 0), App.Vector(74.5, 4.8, 0)),
    Part.LineSegment(App.Vector(74.5, 4.8, 0), App.Vector(73.5, 4.8, 0)),
    Part.LineSegment(App.Vector(73.5, 4.8, 0), App.Vector(74.5, 3.8, 0)),
], False)
sketch18.addConstraint([
    Sketcher.Constraint("Coincident", 0, 2, 1, 1),
    Sketcher.Constraint("Coincident", 1, 2, 2, 1),
    Sketcher.Constraint("Coincident", 2, 2, 0, 1),
    Sketcher.Constraint("Coincident", 3, 2, 4, 1),
    Sketcher.Constraint("Coincident", 4, 2, 5, 1),
    Sketcher.Constraint("Coincident", 5, 2, 3, 1),
    Sketcher.Constraint("Coincident", 6, 2, 7, 1),
    Sketcher.Constraint("Coincident", 7, 2, 8, 1),
    Sketcher.Constraint("Coincident", 8, 2, 6, 1),
    Sketcher.Constraint("Coincident", 9, 2, 10, 1),
    Sketcher.Constraint("Coincident", 10, 2, 11, 1),
    Sketcher.Constraint("Coincident", 11, 2, 9, 1),
    Sketcher.Constraint("Vertical", 0),
    Sketcher.Constraint("Horizontal", 2),
    Sketcher.Constraint("Vertical", 3),
    Sketcher.Constraint("Horizontal", 4),
    Sketcher.Constraint("Horizontal", 6),
    Sketcher.Constraint("Vertical", 7),
    Sketcher.Constraint("Vertical", 9),
    Sketcher.Constraint("Horizontal", 10),
    Sketcher.Constraint("Perpendicular", 1, 5),
    Sketcher.Constraint("Perpendicular", 5, 8),
    Sketcher.Constraint("Perpendicular", 8, 11),
    Sketcher.Constraint("Horizontal", 2, 2, 3, 2),
    Sketcher.Constraint("Horizontal", 0, 2, 5, 2),
    Sketcher.Constraint("Horizontal", 4, 2, 6, 2),
    Sketcher.Constraint("Horizontal", 5, 2, 7, 2),
    Sketcher.Constraint("Horizontal", 8, 2, 9, 2),
    Sketcher.Constraint("Horizontal", 7, 2, 11, 2),
    Sketcher.Constraint("Equal", 2, 4),
    Sketcher.Constraint("DistanceX", 2, 2, 2, 1, Q("1 mm")),
    Sketcher.Constraint("DistanceX", 1, 2, 3, 2, Q("8 mm")),
    Sketcher.Constraint("DistanceX", 3, 2, 6, 2, Q("11 mm")),
    Sketcher.Constraint("DistanceX", 8, 2, 9, 2, Q("8 mm")),
    Sketcher.Constraint("DistanceX", -1, 1, 0, 2, Q("45.5 mm")),
    Sketcher.Constraint("DistanceY", -1, 1, 0, 2, Q("3.75 mm")),
])
sketch18.setExpression("Constraints[30]", "Params.sketch18_width")
pocket11 = body.newObject("PartDesign::Pocket", "Pocket010")
pocket11.Profile = sketch18
pocket11.setExpression("Length", "Params.pocket11_length")

sketch19 = body.newObject("Sketcher::SketchObject", "Sketch018")
sketch19.AttachmentSupport = (doc.getObject("YZ_Plane"), [""])
sketch19.MapMode = "FlatFace"
sketch19.AttachmentOffset = App.Placement(App.Vector(0, 0, 45.5), App.Rotation())
sketch19.addGeometry([
    Part.LineSegment(App.Vector(3.8, 28.8, 0), App.Vector(4.8, 28.8, 0)),
    Part.LineSegment(App.Vector(4.8, 28.8, 0), App.Vector(4.8, 27.8, 0)),
    Part.LineSegment(App.Vector(4.8, 27.8, 0), App.Vector(3.8, 28.8, 0)),
], False)
sketch19.addConstraint([
    Sketcher.Constraint("Coincident", 0, 2, 1, 1),
    Sketcher.Constraint("Coincident", 1, 2, 2, 1),
    Sketcher.Constraint("Coincident", 2, 2, 0, 1),
    Sketcher.Constraint("Horizontal", 0),
    Sketcher.Constraint("Vertical", 1),
    Sketcher.Constraint("Equal", 0, 1),
    Sketcher.Constraint("DistanceX", 0, 1, 0, 2, Q("1 mm")),
    Sketcher.Constraint("DistanceX", -1, 1, 0, 2, Q("4.75 mm")),
    Sketcher.Constraint("DistanceY", -1, 1, 0, 2, Q("28.75 mm")),
])
sketch19.setExpression("Constraints[6]", "Params.sketch19_width")
pocket12 = body.newObject("PartDesign::Pocket", "Pocket011")
pocket12.Profile = sketch19
pocket12.setExpression("Length", "Params.pocket12_length")
pocket12.Reversed = True

sketch20 = body.newObject("Sketcher::SketchObject", "Sketch019")
sketch20.AttachmentSupport = (doc.getObject("XY_Plane"), [""])
sketch20.MapMode = "FlatFace"
sketch20.AttachmentOffset = App.Placement(App.Vector(0, 0, 8.75), App.Rotation())
sketch20.addGeometry([
    Part.Circle(App.Vector(30, 34, 0), App.Vector(0, 0, 1), 2.6),
    Part.Circle(App.Vector(10, 34, 0), App.Vector(0, 0, 1), 2.6),
    Part.Circle(App.Vector(30, 14, 0), App.Vector(0, 0, 1), 2.6),
    Part.Circle(App.Vector(10, 14, 0), App.Vector(0, 0, 1), 2.6),
], False)
sketch20.addConstraint([
    Sketcher.Constraint("Equal", 0, 1),
    Sketcher.Constraint("Equal", 1, 2),
    Sketcher.Constraint("Equal", 2, 3),
    Sketcher.Constraint("Horizontal", 0, 3, 1, 3),
    Sketcher.Constraint("Horizontal", 2, 3, 3, 3),
    Sketcher.Constraint("Vertical", 0, 3, 2, 3),
    Sketcher.Constraint("Vertical", 1, 3, 3, 3),
    Sketcher.Constraint("Diameter", 0, Q("5.2 mm")),
    Sketcher.Constraint("DistanceX", -1, 1, 0, 3, Q("30 mm")),
    Sketcher.Constraint("DistanceY", -1, 1, 0, 3, Q("34 mm")),
    Sketcher.Constraint("DistanceX", -1, 1, 1, 3, Q("10 mm")),
    Sketcher.Constraint("DistanceY", -1, 1, 2, 3, Q("14 mm")),
])
sketch20.setExpression("Constraints[7]", "Params.sketch20_diameter")
pocket13 = body.newObject("PartDesign::Pocket", "Pocket012")
pocket13.Profile = sketch20
pocket13.setExpression("Length", "Params.pocket13_length")
pocket13.Reversed = True

sketch21 = body.newObject("Sketcher::SketchObject", "Sketch020")
sketch21.AttachmentSupport = (doc.getObject("XZ_Plane"), [""])
sketch21.MapMode = "FlatFace"
sketch21.AttachmentOffset = App.Placement(App.Vector(0, 0, -4.75), App.Rotation())
sketch21.addGeometry([
    Part.Circle(App.Vector(10, 18.8, 0), App.Vector(0, 0, 1), 2.6),
    Part.Circle(App.Vector(30, 18.8, 0), App.Vector(0, 0, 1), 2.6),
    Part.Circle(App.Vector(50, 18.8, 0), App.Vector(0, 0, 1), 2.6),
    Part.Circle(App.Vector(70, 18.8, 0), App.Vector(0, 0, 1), 2.6),
], False)
sketch21.addConstraint([
    Sketcher.Constraint("Equal", 0, 1),
    Sketcher.Constraint("Equal", 1, 2),
    Sketcher.Constraint("Equal", 2, 3),
    Sketcher.Constraint("Horizontal", 0, 3, 1, 3),
    Sketcher.Constraint("Horizontal", 1, 3, 2, 3),
    Sketcher.Constraint("Horizontal", 2, 3, 3, 3),
    Sketcher.Constraint("Diameter", 0, Q("5.2 mm")),
    Sketcher.Constraint("DistanceX", -1, 1, 0, 3, Q("10 mm")),
    Sketcher.Constraint("DistanceX", -1, 1, 1, 3, Q("30 mm")),
    Sketcher.Constraint("DistanceX", -1, 1, 2, 3, Q("50 mm")),
    Sketcher.Constraint("DistanceX", -1, 1, 3, 3, Q("70 mm")),
    Sketcher.Constraint("DistanceY", -1, 1, 0, 3, Q("18.75 mm")),
])
sketch21.setExpression("Constraints[6]", "Params.sketch21_diameter")
pocket14 = body.newObject("PartDesign::Pocket", "Pocket013")
pocket14.Profile = sketch21
pocket14.setExpression("Length", "Params.pocket14_length")
pocket14.Reversed = True

sketch22 = body.newObject("Sketcher::SketchObject", "Sketch021")
sketch22.AttachmentSupport = (doc.getObject("YZ_Plane"), [""])
sketch22.MapMode = "FlatFace"
sketch22.AttachmentOffset = App.Placement(App.Vector(0, 0, 84), App.Rotation())
sketch22.addGeometry([
    Part.LineSegment(App.Vector(24, 9, 0), App.Vector(4, 29, 0)),
    Part.LineSegment(App.Vector(4, 29, 0), App.Vector(4, 9, 0)),
    Part.LineSegment(App.Vector(4, 9, 0), App.Vector(24, 9, 0)),
], False)
sketch22.addConstraint([
    Sketcher.Constraint("Coincident", 0, 2, 1, 1),
    Sketcher.Constraint("Coincident", 1, 2, 2, 1),
    Sketcher.Constraint("Coincident", 2, 2, 0, 1),
    Sketcher.Constraint("Vertical", 1),
    Sketcher.Constraint("Horizontal", 2),
    Sketcher.Constraint("Equal", 2, 1),
    Sketcher.Constraint("DistanceX", 2, 1, 2, 2, Q("20 mm")),
    Sketcher.Constraint("DistanceX", -1, 1, 0, 2, Q("3.75 mm")),
    Sketcher.Constraint("DistanceY", -1, 1, 0, 2, Q("28.75 mm")),
])
sketch22.setExpression("Constraints[6]", "Params.sketch22_width")
pad8 = body.newObject("PartDesign::Pad", "Pad007")
pad8.Profile = sketch22
pad8.setExpression("Length", "Params.pad8_length")
pad8.Reversed = True

doc.recompute()
